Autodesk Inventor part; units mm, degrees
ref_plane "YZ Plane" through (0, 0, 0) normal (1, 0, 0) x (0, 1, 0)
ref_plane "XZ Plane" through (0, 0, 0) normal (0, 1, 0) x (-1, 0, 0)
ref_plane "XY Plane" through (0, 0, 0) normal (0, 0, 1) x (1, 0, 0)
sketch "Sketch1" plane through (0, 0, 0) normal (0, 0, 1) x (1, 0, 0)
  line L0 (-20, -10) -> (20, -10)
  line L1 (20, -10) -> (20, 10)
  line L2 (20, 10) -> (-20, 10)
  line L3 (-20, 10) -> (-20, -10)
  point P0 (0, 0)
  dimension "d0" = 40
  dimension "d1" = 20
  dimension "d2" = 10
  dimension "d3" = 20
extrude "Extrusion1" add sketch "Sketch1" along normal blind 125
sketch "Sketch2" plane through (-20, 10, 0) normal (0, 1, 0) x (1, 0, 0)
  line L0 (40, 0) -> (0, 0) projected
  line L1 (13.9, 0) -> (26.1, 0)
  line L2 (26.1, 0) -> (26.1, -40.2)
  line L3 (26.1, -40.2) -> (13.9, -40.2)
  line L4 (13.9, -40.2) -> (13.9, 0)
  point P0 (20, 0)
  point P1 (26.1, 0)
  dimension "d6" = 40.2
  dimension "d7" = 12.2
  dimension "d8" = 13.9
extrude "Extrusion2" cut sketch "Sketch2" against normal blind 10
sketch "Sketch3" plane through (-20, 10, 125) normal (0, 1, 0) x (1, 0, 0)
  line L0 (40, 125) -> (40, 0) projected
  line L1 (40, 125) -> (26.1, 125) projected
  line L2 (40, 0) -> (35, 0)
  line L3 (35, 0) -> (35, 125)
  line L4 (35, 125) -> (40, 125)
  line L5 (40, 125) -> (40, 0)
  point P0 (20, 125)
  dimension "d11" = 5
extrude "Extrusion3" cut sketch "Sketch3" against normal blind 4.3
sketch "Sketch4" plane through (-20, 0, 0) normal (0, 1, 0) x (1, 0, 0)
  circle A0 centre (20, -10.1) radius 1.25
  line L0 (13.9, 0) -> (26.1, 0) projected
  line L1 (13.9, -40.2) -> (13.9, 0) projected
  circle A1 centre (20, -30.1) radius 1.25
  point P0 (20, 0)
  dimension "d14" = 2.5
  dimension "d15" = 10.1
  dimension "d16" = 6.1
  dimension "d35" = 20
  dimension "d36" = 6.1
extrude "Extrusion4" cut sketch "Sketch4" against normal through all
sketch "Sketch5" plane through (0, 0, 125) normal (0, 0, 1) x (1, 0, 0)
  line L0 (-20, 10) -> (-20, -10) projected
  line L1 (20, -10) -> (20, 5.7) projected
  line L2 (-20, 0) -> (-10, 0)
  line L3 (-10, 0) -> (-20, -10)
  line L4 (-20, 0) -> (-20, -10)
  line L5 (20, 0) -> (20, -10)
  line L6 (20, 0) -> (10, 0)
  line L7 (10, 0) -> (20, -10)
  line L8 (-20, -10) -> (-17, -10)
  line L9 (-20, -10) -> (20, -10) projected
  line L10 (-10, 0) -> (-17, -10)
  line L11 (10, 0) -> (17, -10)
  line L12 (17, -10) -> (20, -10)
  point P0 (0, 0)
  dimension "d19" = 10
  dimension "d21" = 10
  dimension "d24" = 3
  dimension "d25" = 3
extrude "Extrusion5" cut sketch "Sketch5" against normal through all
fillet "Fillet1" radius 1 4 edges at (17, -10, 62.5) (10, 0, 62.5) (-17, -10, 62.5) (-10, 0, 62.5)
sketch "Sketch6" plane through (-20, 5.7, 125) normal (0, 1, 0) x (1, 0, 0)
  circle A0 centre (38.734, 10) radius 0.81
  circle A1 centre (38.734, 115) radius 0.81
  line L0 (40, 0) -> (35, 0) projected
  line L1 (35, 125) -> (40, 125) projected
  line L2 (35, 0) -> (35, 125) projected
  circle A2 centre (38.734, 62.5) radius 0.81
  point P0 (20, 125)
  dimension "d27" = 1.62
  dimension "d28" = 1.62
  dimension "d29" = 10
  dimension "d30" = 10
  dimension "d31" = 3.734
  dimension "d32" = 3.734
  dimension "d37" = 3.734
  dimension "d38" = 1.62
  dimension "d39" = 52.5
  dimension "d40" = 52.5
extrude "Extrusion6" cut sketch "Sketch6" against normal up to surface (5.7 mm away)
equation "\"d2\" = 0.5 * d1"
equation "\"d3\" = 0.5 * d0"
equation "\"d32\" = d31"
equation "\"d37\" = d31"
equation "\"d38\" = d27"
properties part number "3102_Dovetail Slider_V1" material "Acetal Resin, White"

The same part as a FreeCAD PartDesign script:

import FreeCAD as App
import Part
import Sketcher

V = App.Vector


def edges_at(feature, points):
    """Names of the edges that pass closest to the given points."""
    edges = feature.Shape.Edges
    near = lambda p: min(range(len(edges)), key=lambda i: edges[i].distToShape(Part.Vertex(*p))[0])
    return sorted({f"Edge{near(p) + 1}" for p in points})


def add_polygon(sketch, points):
    """Adds a closed chain of lines whose ends are joined by coincident constraints."""
    first, n = sketch.GeometryCount, len(points)
    for a, b in zip(points, points[1:] + points[:1]):
        sketch.addGeometry(Part.LineSegment(App.Vector(*a, 0), App.Vector(*b, 0)), False)
    for i in range(n):
        sketch.addConstraint(Sketcher.Constraint("Coincident", first + i, 2, first + (i + 1) % n, 1))

doc = App.newDocument("Part")
body = doc.addObject("PartDesign::Body", "Body")

# Sketch on XY plane
sketch1 = body.newObject("Sketcher::SketchObject", "Sketch")
sketch1.AttachmentSupport = (doc.getObject("XY_Plane"), [""])
sketch1.MapMode = "FlatFace"
add_polygon(sketch1, [(-20, 10), (-20, -10), (20, -10), (20, 10)])  # lines 0-3
sketch1.addConstraint([
    Sketcher.Constraint("Vertical", 0),
    Sketcher.Constraint("Horizontal", 1),
    Sketcher.Constraint("Vertical", 2),
    Sketcher.Constraint("Horizontal", 3),
    Sketcher.Constraint("Symmetric", 0, 2, 2, 2, -1, 1),
    Sketcher.Constraint("DistanceX", 1, 1, 1, 2, 40.0),
    Sketcher.Constraint("DistanceY", 0, 2, 0, 1, 20.0),
])
pad1 = body.newObject("PartDesign::Pad", "Pad")
pad1.Profile = sketch1
pad1.Length = 125

# Sketch on XZ plane
sketch2 = body.newObject("Sketcher::SketchObject", "Sketch001")
sketch2.AttachmentSupport = (doc.getObject("XZ_Plane"), [""])
sketch2.MapMode = "FlatFace"
sketch2.AttachmentOffset = App.Placement(V(0, 0, -10), App.Rotation())
add_polygon(sketch2, [(6.1, 40.2), (6.1, 0), (-6.1, 0), (-6.1, 40.2)])  # lines 0-3
sketch2.addConstraint([
    Sketcher.Constraint("Vertical", 0),
    Sketcher.Constraint("Horizontal", 1),
    Sketcher.Constraint("Vertical", 2),
    Sketcher.Constraint("Horizontal", 3),
    Sketcher.Constraint("Symmetric", 0, 2, 1, 2, -1, 1),
    Sketcher.Constraint("DistanceX", 1, 2, 1, 1, 12.2),
    Sketcher.Constraint("DistanceY", 0, 2, 0, 1, 40.2),
])
pocket1 = body.newObject("PartDesign::Pocket", "Pocket")
pocket1.Profile = sketch2
pocket1.Length = 10
pocket1.Reversed = True

# Sketch on XZ plane
sketch3 = body.newObject("Sketcher::SketchObject", "Sketch002")
sketch3.AttachmentSupport = (doc.getObject("XZ_Plane"), [""])
sketch3.MapMode = "FlatFace"
sketch3.AttachmentOffset = App.Placement(V(0, 0, -10), App.Rotation())
add_polygon(sketch3, [(20, 125), (20, 0), (15, 0), (15, 125)])  # lines 0-3
sketch3.addConstraint([
    Sketcher.Constraint("Vertical", 0),
    Sketcher.Constraint("Horizontal", 1),
    Sketcher.Constraint("Vertical", 2),
    Sketcher.Constraint("Horizontal", 3),
    Sketcher.Constraint("PointOnObject", 0, 2, -1),
    Sketcher.Constraint("DistanceX", 1, 2, 1, 1, 5.0),
    Sketcher.Constraint("DistanceY", 0, 2, 0, 1, 125.0),
    Sketcher.Constraint("DistanceX", -1, 1, 0, 2, 20.0),
])
pocket2 = body.newObject("PartDesign::Pocket", "Pocket001")
pocket2.Profile = sketch3
pocket2.Length = 4.3
pocket2.Reversed = True

# Sketch on XZ plane
sketch4 = body.newObject("Sketcher::SketchObject", "Sketch003")
sketch4.AttachmentSupport = (doc.getObject("XZ_Plane"), [""])
sketch4.MapMode = "FlatFace"
sketch4.addGeometry([
    Part.Circle(V(0, 10.1, 0), V(0, 0, 1), 1.25),
    Part.Circle(V(0, 30.1, 0), V(0, 0, 1), 1.25),
], False)
sketch4.addConstraint([
    Sketcher.Constraint("Equal", 0, 1),
    Sketcher.Constraint("PointOnObject", 0, 3, -2),
    Sketcher.Constraint("PointOnObject", 1, 3, -2),
    Sketcher.Constraint("Diameter", 0, 2.5),
    Sketcher.Constraint("DistanceY", 0, 3, 1, 3, 20.0),
    Sketcher.Constraint("DistanceY", -1, 1, 0, 3, 10.1),
])
pocket3 = body.newObject("PartDesign::Pocket", "Pocket002")
pocket3.Profile = sketch4
pocket3.Type = "ThroughAll"
pocket3.Reversed = True

# Sketch on XY plane
sketch5 = body.newObject("Sketcher::SketchObject", "Sketch004")
sketch5.AttachmentSupport = (doc.getObject("XY_Plane"), [""])
sketch5.MapMode = "FlatFace"
sketch5.AttachmentOffset = App.Placement(V(0, 0, 125), App.Rotation())
add_polygon(sketch5, [(-10, 0), (-20, 0), (-20, -10), (-17, -10)])  # lines 0-3
add_polygon(sketch5, [(10, 0), (17, -10), (20, -10), (20, 0)])  # lines 4-7
sketch5.addConstraint([
    Sketcher.Constraint("Horizontal", 0),
    Sketcher.Constraint("Vertical", 1),
    Sketcher.Constraint("Horizontal", 2),
    Sketcher.Constraint("Horizontal", 5),
    Sketcher.Constraint("Vertical", 6),
    Sketcher.Constraint("Horizontal", 7),
    Sketcher.Constraint("Symmetric", 0, 2, 6, 2, -1, 1),
    Sketcher.Constraint("Symmetric", 2, 2, 4, 2, -2),
    Sketcher.Constraint("Symmetric", 3, 2, 7, 2, -2),
    Sketcher.Constraint("Equal", 7, 1),
    Sketcher.Constraint("DistanceX", 0, 2, 0, 1, 10.0),
    Sketcher.Constraint("DistanceX", 2, 1, 2, 2, 3.0),
    Sketcher.Constraint("DistanceX", 3, 2, -1, 1, 10.0),
])
pocket4 = body.newObject("PartDesign::Pocket", "Pocket003")
pocket4.Profile = sketch5
pocket4.Type = "ThroughAll"
doc.recompute()

fillet = body.newObject("PartDesign::Fillet", "Fillet")
fillet.Base = (pocket4, edges_at(pocket4, [
    (17, -10, 62.5),
    (10, 0, 62.5),
    (-17, -10, 62.5),
    (-10, 0, 62.5),
]))
fillet.Radius = 1

# Sketch on XZ plane
sketch6 = body.newObject("Sketcher::SketchObject", "Sketch005")
sketch6.AttachmentSupport = (doc.getObject("XZ_Plane"), [""])
sketch6.MapMode = "FlatFace"
sketch6.AttachmentOffset = App.Placement(V(0, 0, -5.7), App.Rotation())
sketch6.addGeometry([
    Part.Circle(V(18.734, 115, 0), V(0, 0, 1), 0.81),
    Part.Circle(V(18.734, 10, 0), V(0, 0, 1), 0.81),
    Part.Circle(V(18.734, 62.5, 0), V(0, 0, 1), 0.81),
], False)
sketch6.addConstraint([
    Sketcher.Constraint("Equal", 0, 1),
    Sketcher.Constraint("Equal", 1, 2),
    Sketcher.Constraint("Vertical", 0, 3, 1, 3),
    Sketcher.Constraint("Vertical", 1, 3, 2, 3),
    Sketcher.Constraint("Diameter", 0, 1.62),
    Sketcher.Constraint("DistanceY", -1, 1, 1, 3, 10.0),
    Sketcher.Constraint("DistanceY", 2, 3, 0, 3, 52.5),
    Sketcher.Constraint("DistanceY", 1, 3, 2, 3, 52.5),
    Sketcher.Constraint("DistanceX", -1, 1, 0, 3, 18.734),
])
pocket5 = body.newObject("PartDesign::Pocket", "Pocket004")
pocket5.Profile = sketch6
pocket5.Length = 5.7
pocket5.Reversed = True

doc.recompute()
